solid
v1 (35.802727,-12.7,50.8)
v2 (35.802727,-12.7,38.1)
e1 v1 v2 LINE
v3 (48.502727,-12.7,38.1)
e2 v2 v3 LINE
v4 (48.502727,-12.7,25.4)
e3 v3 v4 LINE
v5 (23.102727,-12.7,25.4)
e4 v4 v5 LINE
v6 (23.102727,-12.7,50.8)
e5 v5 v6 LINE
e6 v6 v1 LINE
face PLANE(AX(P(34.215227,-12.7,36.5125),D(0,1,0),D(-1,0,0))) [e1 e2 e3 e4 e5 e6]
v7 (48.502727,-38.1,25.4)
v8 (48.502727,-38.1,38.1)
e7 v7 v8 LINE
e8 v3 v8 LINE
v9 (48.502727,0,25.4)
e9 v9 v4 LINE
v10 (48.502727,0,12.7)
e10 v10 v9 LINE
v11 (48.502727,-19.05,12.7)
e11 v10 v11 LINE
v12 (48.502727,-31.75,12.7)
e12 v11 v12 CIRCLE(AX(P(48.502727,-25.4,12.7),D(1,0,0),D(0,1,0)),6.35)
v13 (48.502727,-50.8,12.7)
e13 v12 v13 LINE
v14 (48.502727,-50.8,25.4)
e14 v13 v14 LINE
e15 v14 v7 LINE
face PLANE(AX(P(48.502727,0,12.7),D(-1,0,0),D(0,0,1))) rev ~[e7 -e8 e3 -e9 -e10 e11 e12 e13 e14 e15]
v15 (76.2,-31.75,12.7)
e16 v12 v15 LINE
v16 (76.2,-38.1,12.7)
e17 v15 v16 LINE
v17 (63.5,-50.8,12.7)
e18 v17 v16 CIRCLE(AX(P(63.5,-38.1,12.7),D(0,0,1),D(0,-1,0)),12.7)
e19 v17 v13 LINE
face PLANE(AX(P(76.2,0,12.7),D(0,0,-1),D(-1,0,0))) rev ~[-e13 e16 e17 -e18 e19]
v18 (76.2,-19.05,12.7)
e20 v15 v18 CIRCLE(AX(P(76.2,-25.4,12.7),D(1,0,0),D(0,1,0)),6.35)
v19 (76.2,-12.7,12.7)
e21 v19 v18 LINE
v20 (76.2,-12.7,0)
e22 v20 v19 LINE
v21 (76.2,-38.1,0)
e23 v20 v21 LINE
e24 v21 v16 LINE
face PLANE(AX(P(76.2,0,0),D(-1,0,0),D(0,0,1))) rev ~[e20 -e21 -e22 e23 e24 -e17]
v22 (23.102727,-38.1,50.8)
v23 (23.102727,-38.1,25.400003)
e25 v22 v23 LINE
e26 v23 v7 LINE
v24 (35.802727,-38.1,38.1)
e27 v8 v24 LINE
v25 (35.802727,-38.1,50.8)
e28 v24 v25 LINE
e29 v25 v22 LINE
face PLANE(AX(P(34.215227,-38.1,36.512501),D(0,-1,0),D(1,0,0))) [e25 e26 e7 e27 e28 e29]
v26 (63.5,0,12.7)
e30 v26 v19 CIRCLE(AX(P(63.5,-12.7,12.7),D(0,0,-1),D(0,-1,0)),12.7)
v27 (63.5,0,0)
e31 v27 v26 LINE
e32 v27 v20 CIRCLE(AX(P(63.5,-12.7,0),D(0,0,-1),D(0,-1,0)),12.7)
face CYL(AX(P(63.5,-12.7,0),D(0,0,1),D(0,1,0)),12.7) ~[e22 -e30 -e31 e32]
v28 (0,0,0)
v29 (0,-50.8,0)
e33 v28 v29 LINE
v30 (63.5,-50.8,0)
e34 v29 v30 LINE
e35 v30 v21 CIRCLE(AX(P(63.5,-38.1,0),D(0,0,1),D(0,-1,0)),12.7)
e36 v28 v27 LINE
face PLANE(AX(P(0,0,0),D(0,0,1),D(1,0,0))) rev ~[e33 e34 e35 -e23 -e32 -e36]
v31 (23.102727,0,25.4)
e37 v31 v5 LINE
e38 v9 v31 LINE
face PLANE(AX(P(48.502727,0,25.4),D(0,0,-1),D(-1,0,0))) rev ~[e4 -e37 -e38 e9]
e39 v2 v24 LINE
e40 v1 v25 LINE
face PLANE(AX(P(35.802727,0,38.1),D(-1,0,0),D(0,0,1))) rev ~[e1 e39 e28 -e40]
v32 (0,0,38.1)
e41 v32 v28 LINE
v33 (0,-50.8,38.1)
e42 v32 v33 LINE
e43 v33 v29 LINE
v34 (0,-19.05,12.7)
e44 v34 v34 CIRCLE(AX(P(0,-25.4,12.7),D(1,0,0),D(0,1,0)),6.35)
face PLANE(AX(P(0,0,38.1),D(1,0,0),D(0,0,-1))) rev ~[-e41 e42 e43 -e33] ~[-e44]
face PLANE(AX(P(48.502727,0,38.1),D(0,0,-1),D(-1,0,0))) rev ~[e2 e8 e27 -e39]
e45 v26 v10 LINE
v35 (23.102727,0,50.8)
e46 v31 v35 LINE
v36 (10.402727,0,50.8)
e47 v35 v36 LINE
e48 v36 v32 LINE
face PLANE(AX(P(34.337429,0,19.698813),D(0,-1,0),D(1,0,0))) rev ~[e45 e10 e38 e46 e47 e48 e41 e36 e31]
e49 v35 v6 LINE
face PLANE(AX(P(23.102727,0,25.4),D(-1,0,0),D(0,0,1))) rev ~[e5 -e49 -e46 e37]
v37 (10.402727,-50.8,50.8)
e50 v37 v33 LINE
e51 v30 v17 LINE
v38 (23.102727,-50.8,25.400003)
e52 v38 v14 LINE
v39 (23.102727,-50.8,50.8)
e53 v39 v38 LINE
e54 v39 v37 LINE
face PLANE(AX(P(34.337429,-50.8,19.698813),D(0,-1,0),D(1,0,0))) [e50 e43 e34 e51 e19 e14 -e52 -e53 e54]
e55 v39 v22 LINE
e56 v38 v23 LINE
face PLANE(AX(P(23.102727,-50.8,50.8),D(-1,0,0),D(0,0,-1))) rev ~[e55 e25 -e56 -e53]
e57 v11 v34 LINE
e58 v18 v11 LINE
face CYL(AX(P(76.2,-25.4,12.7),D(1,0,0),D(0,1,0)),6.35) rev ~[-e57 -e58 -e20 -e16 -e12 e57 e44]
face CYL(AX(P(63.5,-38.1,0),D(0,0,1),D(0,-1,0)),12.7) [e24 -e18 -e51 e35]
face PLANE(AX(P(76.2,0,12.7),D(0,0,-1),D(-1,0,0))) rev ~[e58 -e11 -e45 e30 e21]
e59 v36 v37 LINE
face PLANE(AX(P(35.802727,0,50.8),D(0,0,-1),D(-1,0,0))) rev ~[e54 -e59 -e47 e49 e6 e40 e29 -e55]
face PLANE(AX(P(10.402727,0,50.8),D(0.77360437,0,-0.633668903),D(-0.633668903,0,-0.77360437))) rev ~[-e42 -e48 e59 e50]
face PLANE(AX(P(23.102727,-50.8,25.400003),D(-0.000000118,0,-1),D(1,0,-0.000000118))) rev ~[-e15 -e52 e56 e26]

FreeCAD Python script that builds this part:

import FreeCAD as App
import Part
import Sketcher
Q = App.Units.Quantity


def edges_at(feature, points):
    """Names of the edges that pass closest to the given points."""
    edges = feature.Shape.Edges
    near = lambda p: min(range(len(edges)), key=lambda i: edges[i].distToShape(Part.Vertex(*p))[0])
    return sorted({f"Edge{near(p) + 1}" for p in points})

doc = App.newDocument("Part")
params = doc.addObject("Spreadsheet::Sheet", "Params")
for row, (alias, value) in enumerate([
    ("sketch1_width", "3 in"),
    ("sketch1_width2", "1 in"),
    ("sketch1_width3", "0.5 in"),
    ("pad1_length", "2 in"),
    ("sketch2_height", "0.9999999 in"),
    ("sketch2_length", "1 in"),
    ("pocket1_length", "0.5 in"),
    ("sketch3_width", "1 in"),
    ("pocket2_length", "0.5 in"),
    ("sketch4_diameter", "0.5 in"),
    ("fillet_radius", "0.5 in"),
], start=1):
    params.set(f"A{row}", alias)
    params.set(f"B{row}", "=" + value)
    params.setAlias(f"B{row}", alias)

body = doc.addObject("PartDesign::Body", "Body")

# Sketch on XZ plane
sketch1 = body.newObject("Sketcher::SketchObject", "Sketch")
sketch1.AttachmentSupport = (doc.getObject("XZ_Plane"), [""])
sketch1.MapMode = "FlatFace"
sketch1.addGeometry([
    Part.LineSegment(App.Vector(0, 38.1, 0), App.Vector(0, 0, 0)),  # 0
    Part.LineSegment(App.Vector(0, 0, 0), App.Vector(76.2, 0, 0)),  # 1
    Part.LineSegment(App.Vector(76.2, 0, 0), App.Vector(76.2, 12.7, 0)),  # 2
    Part.LineSegment(App.Vector(76.2, 12.7, 0), App.Vector(48.502727, 12.7, 0)),  # 3
    Part.LineSegment(App.Vector(48.502727, 12.7, 0), App.Vector(48.502727, 38.1, 0)),  # 4
    Part.LineSegment(App.Vector(48.502727, 38.1, 0), App.Vector(35.802727, 38.1, 0)),  # 5
    Part.LineSegment(App.Vector(35.802727, 38.1, 0), App.Vector(35.802727, 50.8, 0)),  # 6
    Part.LineSegment(App.Vector(35.802727, 50.8, 0), App.Vector(10.402727, 50.8, 0)),  # 7
    Part.LineSegment(App.Vector(10.402727, 50.8, 0), App.Vector(0, 38.1, 0)),  # 8
], False)
sketch1.addConstraint([
    Sketcher.Constraint("Coincident", 0, 2, 1, 1),
    Sketcher.Constraint("Coincident", 1, 2, 2, 1),
    Sketcher.Constraint("Coincident", 2, 2, 3, 1),
    Sketcher.Constraint("Coincident", 3, 2, 4, 1),
    Sketcher.Constraint("Coincident", 4, 2, 5, 1),
    Sketcher.Constraint("Coincident", 5, 2, 6, 1),
    Sketcher.Constraint("Coincident", 6, 2, 7, 1),
    Sketcher.Constraint("Coincident", 7, 2, 8, 1),
    Sketcher.Constraint("Coincident", 8, 2, 0, 1),
    Sketcher.Constraint("Vertical", 0),
    Sketcher.Constraint("Horizontal", 1),
    Sketcher.Constraint("Vertical", 2),
    Sketcher.Constraint("Horizontal", 3),
    Sketcher.Constraint("Vertical", 4),
    Sketcher.Constraint("Horizontal", 5),
    Sketcher.Constraint("Vertical", 6),
    Sketcher.Constraint("Horizontal", 7),
    Sketcher.Constraint("Coincident", 0, 2, -1, 1),
    Sketcher.Constraint("Horizontal", 5, 2, 8, 2),
    Sketcher.Constraint("Equal", 5, 2),
    Sketcher.Constraint("Equal", 7, 4),
    Sketcher.Constraint("Equal", 2, 6),
    Sketcher.Constraint("DistanceX", 1, 1, 1, 2, Q("3 in")),
    Sketcher.Constraint("DistanceX", 7, 2, 7, 1, Q("1 in")),
    Sketcher.Constraint("DistanceX", 5, 2, 5, 1, Q("0.5 in")),
    Sketcher.Constraint("Distance", 8, 16.41666),
])
sketch1.setExpression("Constraints[22]", "Params.sketch1_width")
sketch1.setExpression("Constraints[23]", "Params.sketch1_width2")
sketch1.setExpression("Constraints[24]", "Params.sketch1_width3")
pad1 = body.newObject("PartDesign::Pad", "Pad")
pad1.Profile = sketch1
pad1.setExpression("Length", "Params.pad1_length")

# Sketch on XZ plane
sketch2 = body.newObject("Sketcher::SketchObject", "Sketch001")
sketch2.AttachmentSupport = (doc.getObject("XZ_Plane"), [""])
sketch2.MapMode = "FlatFace"
sketch2.AttachmentOffset = App.Placement(App.Vector(0, 0, 2 * 25.4), App.Rotation())
sketch2.addGeometry([
    Part.LineSegment(App.Vector(35.802727, 50.8, 0), App.Vector(23.102727, 50.8, 0)),  # 0
    Part.LineSegment(App.Vector(23.102727, 50.8, 0), App.Vector(23.102727, 25.400003, 0)),  # 1
    Part.LineSegment(App.Vector(23.102727, 25.400003, 0), App.Vector(48.502727, 25.4, 0)),  # 2
    Part.LineSegment(App.Vector(48.502727, 25.4, 0), App.Vector(48.502727, 38.1, 0)),  # 3
    Part.LineSegment(App.Vector(48.502727, 38.1, 0), App.Vector(35.802727, 38.1, 0)),  # 4
    Part.LineSegment(App.Vector(35.802727, 38.1, 0), App.Vector(35.802727, 50.8, 0)),  # 5
], False)
sketch2.addConstraint([
    Sketcher.Constraint("Coincident", 0, 2, 1, 1),
    Sketcher.Constraint("Coincident", 1, 2, 2, 1),
    Sketcher.Constraint("Coincident", 2, 2, 3, 1),
    Sketcher.Constraint("Coincident", 3, 2, 4, 1),
    Sketcher.Constraint("Coincident", 4, 2, 5, 1),
    Sketcher.Constraint("Coincident", 5, 2, 0, 1),
    Sketcher.Constraint("Horizontal", 0),
    Sketcher.Constraint("Vertical", 1),
    Sketcher.Constraint("Vertical", 3),
    Sketcher.Constraint("Horizontal", 4),
    Sketcher.Constraint("Vertical", 5),
    Sketcher.Constraint("Equal", 0, 4),
    Sketcher.Constraint("Equal", 4, 3),
    Sketcher.Constraint("Equal", 3, 5),
    Sketcher.Constraint("DistanceY", 1, 2, 1, 1, Q("0.9999999 in")),
    Sketcher.Constraint("Distance", 2, Q("1 in")),
    Sketcher.Constraint("DistanceY", -1, 1, 0, 2, Q("2 in")),
    Sketcher.Constraint("DistanceX", -1, 1, 0, 2, 23.102727),
])
sketch2.setExpression("Constraints[14]", "Params.sketch2_height")
sketch2.setExpression("Constraints[15]", "Params.sketch2_length")
pocket1 = body.newObject("PartDesign::Pocket", "Pocket")
pocket1.Profile = sketch2
pocket1.setExpression("Length", "Params.pocket1_length")

# Sketch on XZ plane
sketch3 = body.newObject("Sketcher::SketchObject", "Sketch002")
sketch3.AttachmentSupport = (doc.getObject("XZ_Plane"), [""])
sketch3.MapMode = "FlatFace"
sketch3.addGeometry([
    Part.LineSegment(App.Vector(23.102727, 25.4, 0), App.Vector(23.102727, 50.8, 0)),  # 0
    Part.LineSegment(App.Vector(23.102727, 50.8, 0), App.Vector(35.802727, 50.8, 0)),  # 1
    Part.LineSegment(App.Vector(35.802727, 50.8, 0), App.Vector(35.802727, 38.1, 0)),  # 2
    Part.LineSegment(App.Vector(35.802727, 38.1, 0), App.Vector(48.502727, 38.1, 0)),  # 3
    Part.LineSegment(App.Vector(48.502727, 38.1, 0), App.Vector(48.502727, 25.4, 0)),  # 4
    Part.LineSegment(App.Vector(48.502727, 25.4, 0), App.Vector(23.102727, 25.4, 0)),  # 5
], False)
sketch3.addConstraint([
    Sketcher.Constraint("Coincident", 0, 2, 1, 1),
    Sketcher.Constraint("Coincident", 1, 2, 2, 1),
    Sketcher.Constraint("Coincident", 2, 2, 3, 1),
    Sketcher.Constraint("Coincident", 3, 2, 4, 1),
    Sketcher.Constraint("Coincident", 4, 2, 5, 1),
    Sketcher.Constraint("Coincident", 5, 2, 0, 1),
    Sketcher.Constraint("Vertical", 0),
    Sketcher.Constraint("Horizontal", 1),
    Sketcher.Constraint("Vertical", 2),
    Sketcher.Constraint("Horizontal", 3),
    Sketcher.Constraint("Vertical", 4),
    Sketcher.Constraint("Horizontal", 5),
    Sketcher.Constraint("Equal", 1, 3),
    Sketcher.Constraint("Equal", 5, 0),
    Sketcher.Constraint("Equal", 3, 2),
    Sketcher.Constraint("DistanceX", 5, 2, 5, 1, Q("1 in")),
    Sketcher.Constraint("DistanceY", -1, 1, 0, 2, Q("2 in")),
    Sketcher.Constraint("DistanceX", -1, 1, 0, 2, 23.102727),
])
sketch3.setExpression("Constraints[15]", "Params.sketch3_width")
pocket2 = body.newObject("PartDesign::Pocket", "Pocket001")
pocket2.Profile = sketch3
pocket2.setExpression("Length", "Params.pocket2_length")
pocket2.Reversed = True

# Sketch on YZ plane
sketch4 = body.newObject("Sketcher::SketchObject", "Sketch003")
sketch4.AttachmentSupport = (doc.getObject("YZ_Plane"), [""])
sketch4.MapMode = "FlatFace"
sketch4.AttachmentOffset = App.Placement(App.Vector(0, 0, 3 * 25.4), App.Rotation())
sketch4.addGeometry(Part.Circle(App.Vector(-25.4, 12.7, 0), App.Vector(0, 0, 1), 6.35), False)
sketch4.addConstraint([
    Sketcher.Constraint("Diameter", 0, Q("0.5 in")),
    Sketcher.Constraint("DistanceX", 0, 3, -1, 1, Q("1 in")),
    Sketcher.Constraint("DistanceY", -1, 1, 0, 3, Q("0.5 in")),
])
sketch4.setExpression("Constraints[0]", "Params.sketch4_diameter")
pocket3 = body.newObject("PartDesign::Pocket", "Pocket002")
pocket3.Profile = sketch4
pocket3.Type = "ThroughAll"
doc.recompute()

fillet = body.newObject("PartDesign::Fillet", "Fillet")
fillet.Base = (pocket3, edges_at(pocket3, [(76.2, -50.8, 6.35), (76.2, 0, 6.35)]))
fillet.setExpression("Radius", "Params.fillet_radius")

doc.recompute()
